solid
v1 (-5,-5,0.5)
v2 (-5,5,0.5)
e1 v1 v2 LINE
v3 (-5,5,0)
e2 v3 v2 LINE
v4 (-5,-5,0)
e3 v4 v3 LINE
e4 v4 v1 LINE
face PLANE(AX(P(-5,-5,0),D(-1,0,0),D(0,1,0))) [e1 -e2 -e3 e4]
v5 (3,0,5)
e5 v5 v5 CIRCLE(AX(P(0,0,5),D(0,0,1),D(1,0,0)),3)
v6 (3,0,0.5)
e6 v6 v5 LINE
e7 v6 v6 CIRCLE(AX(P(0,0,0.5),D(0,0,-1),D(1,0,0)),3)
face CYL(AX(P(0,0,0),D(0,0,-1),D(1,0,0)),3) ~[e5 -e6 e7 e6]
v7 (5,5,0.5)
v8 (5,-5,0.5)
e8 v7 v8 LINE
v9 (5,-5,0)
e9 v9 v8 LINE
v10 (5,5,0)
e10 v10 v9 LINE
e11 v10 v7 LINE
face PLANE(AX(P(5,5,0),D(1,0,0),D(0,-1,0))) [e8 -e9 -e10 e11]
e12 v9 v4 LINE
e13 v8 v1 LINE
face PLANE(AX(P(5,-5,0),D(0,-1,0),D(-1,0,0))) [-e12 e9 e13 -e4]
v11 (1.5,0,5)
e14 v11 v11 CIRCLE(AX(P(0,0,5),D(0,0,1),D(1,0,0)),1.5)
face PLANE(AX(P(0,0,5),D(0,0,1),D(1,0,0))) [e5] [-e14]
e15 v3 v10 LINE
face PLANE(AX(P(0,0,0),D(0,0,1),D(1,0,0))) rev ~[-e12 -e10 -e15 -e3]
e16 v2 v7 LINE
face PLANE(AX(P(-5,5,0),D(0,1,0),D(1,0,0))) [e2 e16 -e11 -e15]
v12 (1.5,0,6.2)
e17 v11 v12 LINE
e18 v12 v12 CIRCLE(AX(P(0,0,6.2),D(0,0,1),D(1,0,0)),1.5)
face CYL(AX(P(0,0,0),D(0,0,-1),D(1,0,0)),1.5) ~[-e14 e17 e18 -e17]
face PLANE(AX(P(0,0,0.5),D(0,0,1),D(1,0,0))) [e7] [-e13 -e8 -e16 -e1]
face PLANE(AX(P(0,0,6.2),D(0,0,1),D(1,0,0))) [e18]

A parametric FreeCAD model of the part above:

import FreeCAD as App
import Part
import Sketcher

doc = App.newDocument("Part")
body = doc.addObject("PartDesign::Body", "Body")

sketch1 = body.newObject("Sketcher::SketchObject", "Sketch")
sketch1.AttachmentSupport = (doc.getObject("XY_Plane"), [""])
sketch1.MapMode = "FlatFace"
sketch1.addGeometry(Part.Circle(App.Vector(0, 0, 0), App.Vector(0, 0, 1), 3), False)
sketch1.addGeometry(Part.Circle(App.Vector(0, 0, 0), App.Vector(0, 0, 1), 1.5), False)
sketch1.addConstraint(Sketcher.Constraint("Coincident", 0, 3, -1, 1))
sketch1.addConstraint(Sketcher.Constraint("Coincident", 1, 3, -1, 1))
sketch1.addConstraint(Sketcher.Constraint("Diameter", 0, 6.0))
sketch1.addConstraint(Sketcher.Constraint("Diameter", 1, 3.0))
pad1 = body.newObject("PartDesign::Pad", "Pad")
pad1.Profile = sketch1
pad1.Length = 5

sketch2 = body.newObject("Sketcher::SketchObject", "Sketch001")
sketch2.AttachmentSupport = (doc.getObject("XY_Plane"), [""])
sketch2.MapMode = "FlatFace"
sketch2.addGeometry(Part.Circle(App.Vector(0, 0, 0), App.Vector(0, 0, 1), 1.5), False)
sketch2.addConstraint(Sketcher.Constraint("Coincident", 0, 3, -1, 1))
sketch2.addConstraint(Sketcher.Constraint("Diameter", 0, 3.0))
pad2 = body.newObject("PartDesign::Pad", "Pad001")
pad2.Profile = sketch2
pad2.Length = 6.2

sketch3 = body.newObject("Sketcher::SketchObject", "Sketch002")
sketch3.AttachmentSupport = (doc.getObject("XY_Plane"), [""])
sketch3.MapMode = "FlatFace"
sketch3.addGeometry(Part.LineSegment(App.Vector(5, 5, 0), App.Vector(-5, 5, 0)), False)
sketch3.addGeometry(Part.LineSegment(App.Vector(-5, 5, 0), App.Vector(-5, -5, 0)), False)
sketch3.addGeometry(Part.LineSegment(App.Vector(-5, -5, 0), App.Vector(5, -5, 0)), False)
sketch3.addGeometry(Part.LineSegment(App.Vector(5, -5, 0), App.Vector(5, 5, 0)), False)
sketch3.addConstraint(Sketcher.Constraint("Coincident", 0, 2, 1, 1))
sketch3.addConstraint(Sketcher.Constraint("Coincident", 1, 2, 2, 1))
sketch3.addConstraint(Sketcher.Constraint("Coincident", 2, 2, 3, 1))
sketch3.addConstraint(Sketcher.Constraint("Coincident", 3, 2, 0, 1))
sketch3.addConstraint(Sketcher.Constraint("Horizontal", 0))
sketch3.addConstraint(Sketcher.Constraint("Vertical", 1))
sketch3.addConstraint(Sketcher.Constraint("Horizontal", 2))
sketch3.addConstraint(Sketcher.Constraint("Vertical", 3))
sketch3.addConstraint(Sketcher.Constraint("Symmetric", 0, 2, 2, 2, -1, 1))
sketch3.addConstraint(Sketcher.Constraint("Equal", 2, 1))
sketch3.addConstraint(Sketcher.Constraint("DistanceX", 0, 2, 0, 1, 10.0))
pad3 = body.newObject("PartDesign::Pad", "Pad002")
pad3.Profile = sketch3
pad3.Length = 0.5

doc.recompute()
